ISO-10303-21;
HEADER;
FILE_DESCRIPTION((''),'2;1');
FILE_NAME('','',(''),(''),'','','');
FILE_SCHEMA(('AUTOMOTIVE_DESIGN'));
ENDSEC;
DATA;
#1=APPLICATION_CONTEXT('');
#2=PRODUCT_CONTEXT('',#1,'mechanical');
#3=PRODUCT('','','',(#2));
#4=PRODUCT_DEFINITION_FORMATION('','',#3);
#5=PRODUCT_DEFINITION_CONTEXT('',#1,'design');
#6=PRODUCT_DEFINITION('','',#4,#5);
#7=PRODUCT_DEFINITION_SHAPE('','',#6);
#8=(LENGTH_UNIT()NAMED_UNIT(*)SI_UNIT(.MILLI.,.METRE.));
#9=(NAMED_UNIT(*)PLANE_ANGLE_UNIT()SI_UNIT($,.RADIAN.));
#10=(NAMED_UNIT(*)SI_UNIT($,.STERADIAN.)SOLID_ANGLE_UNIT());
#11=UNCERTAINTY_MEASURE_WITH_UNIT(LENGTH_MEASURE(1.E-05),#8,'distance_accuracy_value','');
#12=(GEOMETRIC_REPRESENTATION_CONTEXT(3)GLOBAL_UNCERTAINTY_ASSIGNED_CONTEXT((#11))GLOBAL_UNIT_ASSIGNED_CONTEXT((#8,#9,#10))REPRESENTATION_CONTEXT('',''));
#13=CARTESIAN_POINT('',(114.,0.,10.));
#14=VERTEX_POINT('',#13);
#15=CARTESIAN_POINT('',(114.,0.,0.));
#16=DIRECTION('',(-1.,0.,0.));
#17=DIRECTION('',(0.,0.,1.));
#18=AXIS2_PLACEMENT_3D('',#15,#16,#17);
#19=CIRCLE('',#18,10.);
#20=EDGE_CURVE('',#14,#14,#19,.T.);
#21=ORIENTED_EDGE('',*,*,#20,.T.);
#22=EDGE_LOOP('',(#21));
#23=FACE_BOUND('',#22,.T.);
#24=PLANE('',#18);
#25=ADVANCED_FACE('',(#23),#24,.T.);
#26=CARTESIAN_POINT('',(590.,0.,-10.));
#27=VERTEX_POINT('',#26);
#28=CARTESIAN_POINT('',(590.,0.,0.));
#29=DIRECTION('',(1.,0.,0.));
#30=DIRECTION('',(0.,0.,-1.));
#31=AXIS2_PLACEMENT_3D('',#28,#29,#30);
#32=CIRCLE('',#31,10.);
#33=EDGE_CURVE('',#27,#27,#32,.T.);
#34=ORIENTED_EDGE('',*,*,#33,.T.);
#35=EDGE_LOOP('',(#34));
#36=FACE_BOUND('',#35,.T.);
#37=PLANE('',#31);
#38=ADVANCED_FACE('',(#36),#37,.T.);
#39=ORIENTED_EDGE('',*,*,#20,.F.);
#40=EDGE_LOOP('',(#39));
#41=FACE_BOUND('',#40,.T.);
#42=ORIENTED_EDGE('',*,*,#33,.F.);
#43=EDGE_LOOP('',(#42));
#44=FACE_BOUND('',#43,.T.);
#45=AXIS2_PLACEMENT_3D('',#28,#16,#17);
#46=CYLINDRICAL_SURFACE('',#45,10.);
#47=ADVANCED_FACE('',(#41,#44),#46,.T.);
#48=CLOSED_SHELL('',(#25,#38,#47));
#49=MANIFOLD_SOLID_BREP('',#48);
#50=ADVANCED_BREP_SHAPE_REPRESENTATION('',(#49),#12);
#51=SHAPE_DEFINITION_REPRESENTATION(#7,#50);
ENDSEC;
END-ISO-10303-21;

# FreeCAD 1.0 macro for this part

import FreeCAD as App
import Part
import Sketcher
from FreeCAD import Vector

doc = App.newDocument("Part")
body = doc.addObject("PartDesign::Body", "Body")

# Sketch on YZ plane
sketch1 = body.newObject("Sketcher::SketchObject", "Sketch")
sketch1.AttachmentSupport = (doc.getObject("YZ_Plane"), [""])
sketch1.MapMode = "FlatFace"
sketch1.addGeometry(Part.Circle(Vector(0, 0, 0), Vector(0, 0, 1), 10), False)
sketch1.addConstraint([
    Sketcher.Constraint("Coincident", 0, 3, -1, 1),
    Sketcher.Constraint("Diameter", 0, 20.0),
])
pad1 = body.newObject("PartDesign::Pad", "Pad")
pad1.Profile = sketch1
pad1.Length = 590

# Sketch on YZ plane
sketch2 = body.newObject("Sketcher::SketchObject", "Sketch001")
sketch2.AttachmentSupport = (doc.getObject("YZ_Plane"), [""])
sketch2.MapMode = "FlatFace"
sketch2.addGeometry(Part.Circle(Vector(0, 0, 0), Vector(0, 0, 1), 114), False)
sketch2.addConstraint([
    Sketcher.Constraint("Coincident", 0, 3, -1, 1),
    Sketcher.Constraint("Diameter", 0, 228.0),
])
pocket1 = body.newObject("PartDesign::Pocket", "Pocket")
pocket1.Profile = sketch2
pocket1.Length = 114
pocket1.Reversed = True

doc.recompute()
